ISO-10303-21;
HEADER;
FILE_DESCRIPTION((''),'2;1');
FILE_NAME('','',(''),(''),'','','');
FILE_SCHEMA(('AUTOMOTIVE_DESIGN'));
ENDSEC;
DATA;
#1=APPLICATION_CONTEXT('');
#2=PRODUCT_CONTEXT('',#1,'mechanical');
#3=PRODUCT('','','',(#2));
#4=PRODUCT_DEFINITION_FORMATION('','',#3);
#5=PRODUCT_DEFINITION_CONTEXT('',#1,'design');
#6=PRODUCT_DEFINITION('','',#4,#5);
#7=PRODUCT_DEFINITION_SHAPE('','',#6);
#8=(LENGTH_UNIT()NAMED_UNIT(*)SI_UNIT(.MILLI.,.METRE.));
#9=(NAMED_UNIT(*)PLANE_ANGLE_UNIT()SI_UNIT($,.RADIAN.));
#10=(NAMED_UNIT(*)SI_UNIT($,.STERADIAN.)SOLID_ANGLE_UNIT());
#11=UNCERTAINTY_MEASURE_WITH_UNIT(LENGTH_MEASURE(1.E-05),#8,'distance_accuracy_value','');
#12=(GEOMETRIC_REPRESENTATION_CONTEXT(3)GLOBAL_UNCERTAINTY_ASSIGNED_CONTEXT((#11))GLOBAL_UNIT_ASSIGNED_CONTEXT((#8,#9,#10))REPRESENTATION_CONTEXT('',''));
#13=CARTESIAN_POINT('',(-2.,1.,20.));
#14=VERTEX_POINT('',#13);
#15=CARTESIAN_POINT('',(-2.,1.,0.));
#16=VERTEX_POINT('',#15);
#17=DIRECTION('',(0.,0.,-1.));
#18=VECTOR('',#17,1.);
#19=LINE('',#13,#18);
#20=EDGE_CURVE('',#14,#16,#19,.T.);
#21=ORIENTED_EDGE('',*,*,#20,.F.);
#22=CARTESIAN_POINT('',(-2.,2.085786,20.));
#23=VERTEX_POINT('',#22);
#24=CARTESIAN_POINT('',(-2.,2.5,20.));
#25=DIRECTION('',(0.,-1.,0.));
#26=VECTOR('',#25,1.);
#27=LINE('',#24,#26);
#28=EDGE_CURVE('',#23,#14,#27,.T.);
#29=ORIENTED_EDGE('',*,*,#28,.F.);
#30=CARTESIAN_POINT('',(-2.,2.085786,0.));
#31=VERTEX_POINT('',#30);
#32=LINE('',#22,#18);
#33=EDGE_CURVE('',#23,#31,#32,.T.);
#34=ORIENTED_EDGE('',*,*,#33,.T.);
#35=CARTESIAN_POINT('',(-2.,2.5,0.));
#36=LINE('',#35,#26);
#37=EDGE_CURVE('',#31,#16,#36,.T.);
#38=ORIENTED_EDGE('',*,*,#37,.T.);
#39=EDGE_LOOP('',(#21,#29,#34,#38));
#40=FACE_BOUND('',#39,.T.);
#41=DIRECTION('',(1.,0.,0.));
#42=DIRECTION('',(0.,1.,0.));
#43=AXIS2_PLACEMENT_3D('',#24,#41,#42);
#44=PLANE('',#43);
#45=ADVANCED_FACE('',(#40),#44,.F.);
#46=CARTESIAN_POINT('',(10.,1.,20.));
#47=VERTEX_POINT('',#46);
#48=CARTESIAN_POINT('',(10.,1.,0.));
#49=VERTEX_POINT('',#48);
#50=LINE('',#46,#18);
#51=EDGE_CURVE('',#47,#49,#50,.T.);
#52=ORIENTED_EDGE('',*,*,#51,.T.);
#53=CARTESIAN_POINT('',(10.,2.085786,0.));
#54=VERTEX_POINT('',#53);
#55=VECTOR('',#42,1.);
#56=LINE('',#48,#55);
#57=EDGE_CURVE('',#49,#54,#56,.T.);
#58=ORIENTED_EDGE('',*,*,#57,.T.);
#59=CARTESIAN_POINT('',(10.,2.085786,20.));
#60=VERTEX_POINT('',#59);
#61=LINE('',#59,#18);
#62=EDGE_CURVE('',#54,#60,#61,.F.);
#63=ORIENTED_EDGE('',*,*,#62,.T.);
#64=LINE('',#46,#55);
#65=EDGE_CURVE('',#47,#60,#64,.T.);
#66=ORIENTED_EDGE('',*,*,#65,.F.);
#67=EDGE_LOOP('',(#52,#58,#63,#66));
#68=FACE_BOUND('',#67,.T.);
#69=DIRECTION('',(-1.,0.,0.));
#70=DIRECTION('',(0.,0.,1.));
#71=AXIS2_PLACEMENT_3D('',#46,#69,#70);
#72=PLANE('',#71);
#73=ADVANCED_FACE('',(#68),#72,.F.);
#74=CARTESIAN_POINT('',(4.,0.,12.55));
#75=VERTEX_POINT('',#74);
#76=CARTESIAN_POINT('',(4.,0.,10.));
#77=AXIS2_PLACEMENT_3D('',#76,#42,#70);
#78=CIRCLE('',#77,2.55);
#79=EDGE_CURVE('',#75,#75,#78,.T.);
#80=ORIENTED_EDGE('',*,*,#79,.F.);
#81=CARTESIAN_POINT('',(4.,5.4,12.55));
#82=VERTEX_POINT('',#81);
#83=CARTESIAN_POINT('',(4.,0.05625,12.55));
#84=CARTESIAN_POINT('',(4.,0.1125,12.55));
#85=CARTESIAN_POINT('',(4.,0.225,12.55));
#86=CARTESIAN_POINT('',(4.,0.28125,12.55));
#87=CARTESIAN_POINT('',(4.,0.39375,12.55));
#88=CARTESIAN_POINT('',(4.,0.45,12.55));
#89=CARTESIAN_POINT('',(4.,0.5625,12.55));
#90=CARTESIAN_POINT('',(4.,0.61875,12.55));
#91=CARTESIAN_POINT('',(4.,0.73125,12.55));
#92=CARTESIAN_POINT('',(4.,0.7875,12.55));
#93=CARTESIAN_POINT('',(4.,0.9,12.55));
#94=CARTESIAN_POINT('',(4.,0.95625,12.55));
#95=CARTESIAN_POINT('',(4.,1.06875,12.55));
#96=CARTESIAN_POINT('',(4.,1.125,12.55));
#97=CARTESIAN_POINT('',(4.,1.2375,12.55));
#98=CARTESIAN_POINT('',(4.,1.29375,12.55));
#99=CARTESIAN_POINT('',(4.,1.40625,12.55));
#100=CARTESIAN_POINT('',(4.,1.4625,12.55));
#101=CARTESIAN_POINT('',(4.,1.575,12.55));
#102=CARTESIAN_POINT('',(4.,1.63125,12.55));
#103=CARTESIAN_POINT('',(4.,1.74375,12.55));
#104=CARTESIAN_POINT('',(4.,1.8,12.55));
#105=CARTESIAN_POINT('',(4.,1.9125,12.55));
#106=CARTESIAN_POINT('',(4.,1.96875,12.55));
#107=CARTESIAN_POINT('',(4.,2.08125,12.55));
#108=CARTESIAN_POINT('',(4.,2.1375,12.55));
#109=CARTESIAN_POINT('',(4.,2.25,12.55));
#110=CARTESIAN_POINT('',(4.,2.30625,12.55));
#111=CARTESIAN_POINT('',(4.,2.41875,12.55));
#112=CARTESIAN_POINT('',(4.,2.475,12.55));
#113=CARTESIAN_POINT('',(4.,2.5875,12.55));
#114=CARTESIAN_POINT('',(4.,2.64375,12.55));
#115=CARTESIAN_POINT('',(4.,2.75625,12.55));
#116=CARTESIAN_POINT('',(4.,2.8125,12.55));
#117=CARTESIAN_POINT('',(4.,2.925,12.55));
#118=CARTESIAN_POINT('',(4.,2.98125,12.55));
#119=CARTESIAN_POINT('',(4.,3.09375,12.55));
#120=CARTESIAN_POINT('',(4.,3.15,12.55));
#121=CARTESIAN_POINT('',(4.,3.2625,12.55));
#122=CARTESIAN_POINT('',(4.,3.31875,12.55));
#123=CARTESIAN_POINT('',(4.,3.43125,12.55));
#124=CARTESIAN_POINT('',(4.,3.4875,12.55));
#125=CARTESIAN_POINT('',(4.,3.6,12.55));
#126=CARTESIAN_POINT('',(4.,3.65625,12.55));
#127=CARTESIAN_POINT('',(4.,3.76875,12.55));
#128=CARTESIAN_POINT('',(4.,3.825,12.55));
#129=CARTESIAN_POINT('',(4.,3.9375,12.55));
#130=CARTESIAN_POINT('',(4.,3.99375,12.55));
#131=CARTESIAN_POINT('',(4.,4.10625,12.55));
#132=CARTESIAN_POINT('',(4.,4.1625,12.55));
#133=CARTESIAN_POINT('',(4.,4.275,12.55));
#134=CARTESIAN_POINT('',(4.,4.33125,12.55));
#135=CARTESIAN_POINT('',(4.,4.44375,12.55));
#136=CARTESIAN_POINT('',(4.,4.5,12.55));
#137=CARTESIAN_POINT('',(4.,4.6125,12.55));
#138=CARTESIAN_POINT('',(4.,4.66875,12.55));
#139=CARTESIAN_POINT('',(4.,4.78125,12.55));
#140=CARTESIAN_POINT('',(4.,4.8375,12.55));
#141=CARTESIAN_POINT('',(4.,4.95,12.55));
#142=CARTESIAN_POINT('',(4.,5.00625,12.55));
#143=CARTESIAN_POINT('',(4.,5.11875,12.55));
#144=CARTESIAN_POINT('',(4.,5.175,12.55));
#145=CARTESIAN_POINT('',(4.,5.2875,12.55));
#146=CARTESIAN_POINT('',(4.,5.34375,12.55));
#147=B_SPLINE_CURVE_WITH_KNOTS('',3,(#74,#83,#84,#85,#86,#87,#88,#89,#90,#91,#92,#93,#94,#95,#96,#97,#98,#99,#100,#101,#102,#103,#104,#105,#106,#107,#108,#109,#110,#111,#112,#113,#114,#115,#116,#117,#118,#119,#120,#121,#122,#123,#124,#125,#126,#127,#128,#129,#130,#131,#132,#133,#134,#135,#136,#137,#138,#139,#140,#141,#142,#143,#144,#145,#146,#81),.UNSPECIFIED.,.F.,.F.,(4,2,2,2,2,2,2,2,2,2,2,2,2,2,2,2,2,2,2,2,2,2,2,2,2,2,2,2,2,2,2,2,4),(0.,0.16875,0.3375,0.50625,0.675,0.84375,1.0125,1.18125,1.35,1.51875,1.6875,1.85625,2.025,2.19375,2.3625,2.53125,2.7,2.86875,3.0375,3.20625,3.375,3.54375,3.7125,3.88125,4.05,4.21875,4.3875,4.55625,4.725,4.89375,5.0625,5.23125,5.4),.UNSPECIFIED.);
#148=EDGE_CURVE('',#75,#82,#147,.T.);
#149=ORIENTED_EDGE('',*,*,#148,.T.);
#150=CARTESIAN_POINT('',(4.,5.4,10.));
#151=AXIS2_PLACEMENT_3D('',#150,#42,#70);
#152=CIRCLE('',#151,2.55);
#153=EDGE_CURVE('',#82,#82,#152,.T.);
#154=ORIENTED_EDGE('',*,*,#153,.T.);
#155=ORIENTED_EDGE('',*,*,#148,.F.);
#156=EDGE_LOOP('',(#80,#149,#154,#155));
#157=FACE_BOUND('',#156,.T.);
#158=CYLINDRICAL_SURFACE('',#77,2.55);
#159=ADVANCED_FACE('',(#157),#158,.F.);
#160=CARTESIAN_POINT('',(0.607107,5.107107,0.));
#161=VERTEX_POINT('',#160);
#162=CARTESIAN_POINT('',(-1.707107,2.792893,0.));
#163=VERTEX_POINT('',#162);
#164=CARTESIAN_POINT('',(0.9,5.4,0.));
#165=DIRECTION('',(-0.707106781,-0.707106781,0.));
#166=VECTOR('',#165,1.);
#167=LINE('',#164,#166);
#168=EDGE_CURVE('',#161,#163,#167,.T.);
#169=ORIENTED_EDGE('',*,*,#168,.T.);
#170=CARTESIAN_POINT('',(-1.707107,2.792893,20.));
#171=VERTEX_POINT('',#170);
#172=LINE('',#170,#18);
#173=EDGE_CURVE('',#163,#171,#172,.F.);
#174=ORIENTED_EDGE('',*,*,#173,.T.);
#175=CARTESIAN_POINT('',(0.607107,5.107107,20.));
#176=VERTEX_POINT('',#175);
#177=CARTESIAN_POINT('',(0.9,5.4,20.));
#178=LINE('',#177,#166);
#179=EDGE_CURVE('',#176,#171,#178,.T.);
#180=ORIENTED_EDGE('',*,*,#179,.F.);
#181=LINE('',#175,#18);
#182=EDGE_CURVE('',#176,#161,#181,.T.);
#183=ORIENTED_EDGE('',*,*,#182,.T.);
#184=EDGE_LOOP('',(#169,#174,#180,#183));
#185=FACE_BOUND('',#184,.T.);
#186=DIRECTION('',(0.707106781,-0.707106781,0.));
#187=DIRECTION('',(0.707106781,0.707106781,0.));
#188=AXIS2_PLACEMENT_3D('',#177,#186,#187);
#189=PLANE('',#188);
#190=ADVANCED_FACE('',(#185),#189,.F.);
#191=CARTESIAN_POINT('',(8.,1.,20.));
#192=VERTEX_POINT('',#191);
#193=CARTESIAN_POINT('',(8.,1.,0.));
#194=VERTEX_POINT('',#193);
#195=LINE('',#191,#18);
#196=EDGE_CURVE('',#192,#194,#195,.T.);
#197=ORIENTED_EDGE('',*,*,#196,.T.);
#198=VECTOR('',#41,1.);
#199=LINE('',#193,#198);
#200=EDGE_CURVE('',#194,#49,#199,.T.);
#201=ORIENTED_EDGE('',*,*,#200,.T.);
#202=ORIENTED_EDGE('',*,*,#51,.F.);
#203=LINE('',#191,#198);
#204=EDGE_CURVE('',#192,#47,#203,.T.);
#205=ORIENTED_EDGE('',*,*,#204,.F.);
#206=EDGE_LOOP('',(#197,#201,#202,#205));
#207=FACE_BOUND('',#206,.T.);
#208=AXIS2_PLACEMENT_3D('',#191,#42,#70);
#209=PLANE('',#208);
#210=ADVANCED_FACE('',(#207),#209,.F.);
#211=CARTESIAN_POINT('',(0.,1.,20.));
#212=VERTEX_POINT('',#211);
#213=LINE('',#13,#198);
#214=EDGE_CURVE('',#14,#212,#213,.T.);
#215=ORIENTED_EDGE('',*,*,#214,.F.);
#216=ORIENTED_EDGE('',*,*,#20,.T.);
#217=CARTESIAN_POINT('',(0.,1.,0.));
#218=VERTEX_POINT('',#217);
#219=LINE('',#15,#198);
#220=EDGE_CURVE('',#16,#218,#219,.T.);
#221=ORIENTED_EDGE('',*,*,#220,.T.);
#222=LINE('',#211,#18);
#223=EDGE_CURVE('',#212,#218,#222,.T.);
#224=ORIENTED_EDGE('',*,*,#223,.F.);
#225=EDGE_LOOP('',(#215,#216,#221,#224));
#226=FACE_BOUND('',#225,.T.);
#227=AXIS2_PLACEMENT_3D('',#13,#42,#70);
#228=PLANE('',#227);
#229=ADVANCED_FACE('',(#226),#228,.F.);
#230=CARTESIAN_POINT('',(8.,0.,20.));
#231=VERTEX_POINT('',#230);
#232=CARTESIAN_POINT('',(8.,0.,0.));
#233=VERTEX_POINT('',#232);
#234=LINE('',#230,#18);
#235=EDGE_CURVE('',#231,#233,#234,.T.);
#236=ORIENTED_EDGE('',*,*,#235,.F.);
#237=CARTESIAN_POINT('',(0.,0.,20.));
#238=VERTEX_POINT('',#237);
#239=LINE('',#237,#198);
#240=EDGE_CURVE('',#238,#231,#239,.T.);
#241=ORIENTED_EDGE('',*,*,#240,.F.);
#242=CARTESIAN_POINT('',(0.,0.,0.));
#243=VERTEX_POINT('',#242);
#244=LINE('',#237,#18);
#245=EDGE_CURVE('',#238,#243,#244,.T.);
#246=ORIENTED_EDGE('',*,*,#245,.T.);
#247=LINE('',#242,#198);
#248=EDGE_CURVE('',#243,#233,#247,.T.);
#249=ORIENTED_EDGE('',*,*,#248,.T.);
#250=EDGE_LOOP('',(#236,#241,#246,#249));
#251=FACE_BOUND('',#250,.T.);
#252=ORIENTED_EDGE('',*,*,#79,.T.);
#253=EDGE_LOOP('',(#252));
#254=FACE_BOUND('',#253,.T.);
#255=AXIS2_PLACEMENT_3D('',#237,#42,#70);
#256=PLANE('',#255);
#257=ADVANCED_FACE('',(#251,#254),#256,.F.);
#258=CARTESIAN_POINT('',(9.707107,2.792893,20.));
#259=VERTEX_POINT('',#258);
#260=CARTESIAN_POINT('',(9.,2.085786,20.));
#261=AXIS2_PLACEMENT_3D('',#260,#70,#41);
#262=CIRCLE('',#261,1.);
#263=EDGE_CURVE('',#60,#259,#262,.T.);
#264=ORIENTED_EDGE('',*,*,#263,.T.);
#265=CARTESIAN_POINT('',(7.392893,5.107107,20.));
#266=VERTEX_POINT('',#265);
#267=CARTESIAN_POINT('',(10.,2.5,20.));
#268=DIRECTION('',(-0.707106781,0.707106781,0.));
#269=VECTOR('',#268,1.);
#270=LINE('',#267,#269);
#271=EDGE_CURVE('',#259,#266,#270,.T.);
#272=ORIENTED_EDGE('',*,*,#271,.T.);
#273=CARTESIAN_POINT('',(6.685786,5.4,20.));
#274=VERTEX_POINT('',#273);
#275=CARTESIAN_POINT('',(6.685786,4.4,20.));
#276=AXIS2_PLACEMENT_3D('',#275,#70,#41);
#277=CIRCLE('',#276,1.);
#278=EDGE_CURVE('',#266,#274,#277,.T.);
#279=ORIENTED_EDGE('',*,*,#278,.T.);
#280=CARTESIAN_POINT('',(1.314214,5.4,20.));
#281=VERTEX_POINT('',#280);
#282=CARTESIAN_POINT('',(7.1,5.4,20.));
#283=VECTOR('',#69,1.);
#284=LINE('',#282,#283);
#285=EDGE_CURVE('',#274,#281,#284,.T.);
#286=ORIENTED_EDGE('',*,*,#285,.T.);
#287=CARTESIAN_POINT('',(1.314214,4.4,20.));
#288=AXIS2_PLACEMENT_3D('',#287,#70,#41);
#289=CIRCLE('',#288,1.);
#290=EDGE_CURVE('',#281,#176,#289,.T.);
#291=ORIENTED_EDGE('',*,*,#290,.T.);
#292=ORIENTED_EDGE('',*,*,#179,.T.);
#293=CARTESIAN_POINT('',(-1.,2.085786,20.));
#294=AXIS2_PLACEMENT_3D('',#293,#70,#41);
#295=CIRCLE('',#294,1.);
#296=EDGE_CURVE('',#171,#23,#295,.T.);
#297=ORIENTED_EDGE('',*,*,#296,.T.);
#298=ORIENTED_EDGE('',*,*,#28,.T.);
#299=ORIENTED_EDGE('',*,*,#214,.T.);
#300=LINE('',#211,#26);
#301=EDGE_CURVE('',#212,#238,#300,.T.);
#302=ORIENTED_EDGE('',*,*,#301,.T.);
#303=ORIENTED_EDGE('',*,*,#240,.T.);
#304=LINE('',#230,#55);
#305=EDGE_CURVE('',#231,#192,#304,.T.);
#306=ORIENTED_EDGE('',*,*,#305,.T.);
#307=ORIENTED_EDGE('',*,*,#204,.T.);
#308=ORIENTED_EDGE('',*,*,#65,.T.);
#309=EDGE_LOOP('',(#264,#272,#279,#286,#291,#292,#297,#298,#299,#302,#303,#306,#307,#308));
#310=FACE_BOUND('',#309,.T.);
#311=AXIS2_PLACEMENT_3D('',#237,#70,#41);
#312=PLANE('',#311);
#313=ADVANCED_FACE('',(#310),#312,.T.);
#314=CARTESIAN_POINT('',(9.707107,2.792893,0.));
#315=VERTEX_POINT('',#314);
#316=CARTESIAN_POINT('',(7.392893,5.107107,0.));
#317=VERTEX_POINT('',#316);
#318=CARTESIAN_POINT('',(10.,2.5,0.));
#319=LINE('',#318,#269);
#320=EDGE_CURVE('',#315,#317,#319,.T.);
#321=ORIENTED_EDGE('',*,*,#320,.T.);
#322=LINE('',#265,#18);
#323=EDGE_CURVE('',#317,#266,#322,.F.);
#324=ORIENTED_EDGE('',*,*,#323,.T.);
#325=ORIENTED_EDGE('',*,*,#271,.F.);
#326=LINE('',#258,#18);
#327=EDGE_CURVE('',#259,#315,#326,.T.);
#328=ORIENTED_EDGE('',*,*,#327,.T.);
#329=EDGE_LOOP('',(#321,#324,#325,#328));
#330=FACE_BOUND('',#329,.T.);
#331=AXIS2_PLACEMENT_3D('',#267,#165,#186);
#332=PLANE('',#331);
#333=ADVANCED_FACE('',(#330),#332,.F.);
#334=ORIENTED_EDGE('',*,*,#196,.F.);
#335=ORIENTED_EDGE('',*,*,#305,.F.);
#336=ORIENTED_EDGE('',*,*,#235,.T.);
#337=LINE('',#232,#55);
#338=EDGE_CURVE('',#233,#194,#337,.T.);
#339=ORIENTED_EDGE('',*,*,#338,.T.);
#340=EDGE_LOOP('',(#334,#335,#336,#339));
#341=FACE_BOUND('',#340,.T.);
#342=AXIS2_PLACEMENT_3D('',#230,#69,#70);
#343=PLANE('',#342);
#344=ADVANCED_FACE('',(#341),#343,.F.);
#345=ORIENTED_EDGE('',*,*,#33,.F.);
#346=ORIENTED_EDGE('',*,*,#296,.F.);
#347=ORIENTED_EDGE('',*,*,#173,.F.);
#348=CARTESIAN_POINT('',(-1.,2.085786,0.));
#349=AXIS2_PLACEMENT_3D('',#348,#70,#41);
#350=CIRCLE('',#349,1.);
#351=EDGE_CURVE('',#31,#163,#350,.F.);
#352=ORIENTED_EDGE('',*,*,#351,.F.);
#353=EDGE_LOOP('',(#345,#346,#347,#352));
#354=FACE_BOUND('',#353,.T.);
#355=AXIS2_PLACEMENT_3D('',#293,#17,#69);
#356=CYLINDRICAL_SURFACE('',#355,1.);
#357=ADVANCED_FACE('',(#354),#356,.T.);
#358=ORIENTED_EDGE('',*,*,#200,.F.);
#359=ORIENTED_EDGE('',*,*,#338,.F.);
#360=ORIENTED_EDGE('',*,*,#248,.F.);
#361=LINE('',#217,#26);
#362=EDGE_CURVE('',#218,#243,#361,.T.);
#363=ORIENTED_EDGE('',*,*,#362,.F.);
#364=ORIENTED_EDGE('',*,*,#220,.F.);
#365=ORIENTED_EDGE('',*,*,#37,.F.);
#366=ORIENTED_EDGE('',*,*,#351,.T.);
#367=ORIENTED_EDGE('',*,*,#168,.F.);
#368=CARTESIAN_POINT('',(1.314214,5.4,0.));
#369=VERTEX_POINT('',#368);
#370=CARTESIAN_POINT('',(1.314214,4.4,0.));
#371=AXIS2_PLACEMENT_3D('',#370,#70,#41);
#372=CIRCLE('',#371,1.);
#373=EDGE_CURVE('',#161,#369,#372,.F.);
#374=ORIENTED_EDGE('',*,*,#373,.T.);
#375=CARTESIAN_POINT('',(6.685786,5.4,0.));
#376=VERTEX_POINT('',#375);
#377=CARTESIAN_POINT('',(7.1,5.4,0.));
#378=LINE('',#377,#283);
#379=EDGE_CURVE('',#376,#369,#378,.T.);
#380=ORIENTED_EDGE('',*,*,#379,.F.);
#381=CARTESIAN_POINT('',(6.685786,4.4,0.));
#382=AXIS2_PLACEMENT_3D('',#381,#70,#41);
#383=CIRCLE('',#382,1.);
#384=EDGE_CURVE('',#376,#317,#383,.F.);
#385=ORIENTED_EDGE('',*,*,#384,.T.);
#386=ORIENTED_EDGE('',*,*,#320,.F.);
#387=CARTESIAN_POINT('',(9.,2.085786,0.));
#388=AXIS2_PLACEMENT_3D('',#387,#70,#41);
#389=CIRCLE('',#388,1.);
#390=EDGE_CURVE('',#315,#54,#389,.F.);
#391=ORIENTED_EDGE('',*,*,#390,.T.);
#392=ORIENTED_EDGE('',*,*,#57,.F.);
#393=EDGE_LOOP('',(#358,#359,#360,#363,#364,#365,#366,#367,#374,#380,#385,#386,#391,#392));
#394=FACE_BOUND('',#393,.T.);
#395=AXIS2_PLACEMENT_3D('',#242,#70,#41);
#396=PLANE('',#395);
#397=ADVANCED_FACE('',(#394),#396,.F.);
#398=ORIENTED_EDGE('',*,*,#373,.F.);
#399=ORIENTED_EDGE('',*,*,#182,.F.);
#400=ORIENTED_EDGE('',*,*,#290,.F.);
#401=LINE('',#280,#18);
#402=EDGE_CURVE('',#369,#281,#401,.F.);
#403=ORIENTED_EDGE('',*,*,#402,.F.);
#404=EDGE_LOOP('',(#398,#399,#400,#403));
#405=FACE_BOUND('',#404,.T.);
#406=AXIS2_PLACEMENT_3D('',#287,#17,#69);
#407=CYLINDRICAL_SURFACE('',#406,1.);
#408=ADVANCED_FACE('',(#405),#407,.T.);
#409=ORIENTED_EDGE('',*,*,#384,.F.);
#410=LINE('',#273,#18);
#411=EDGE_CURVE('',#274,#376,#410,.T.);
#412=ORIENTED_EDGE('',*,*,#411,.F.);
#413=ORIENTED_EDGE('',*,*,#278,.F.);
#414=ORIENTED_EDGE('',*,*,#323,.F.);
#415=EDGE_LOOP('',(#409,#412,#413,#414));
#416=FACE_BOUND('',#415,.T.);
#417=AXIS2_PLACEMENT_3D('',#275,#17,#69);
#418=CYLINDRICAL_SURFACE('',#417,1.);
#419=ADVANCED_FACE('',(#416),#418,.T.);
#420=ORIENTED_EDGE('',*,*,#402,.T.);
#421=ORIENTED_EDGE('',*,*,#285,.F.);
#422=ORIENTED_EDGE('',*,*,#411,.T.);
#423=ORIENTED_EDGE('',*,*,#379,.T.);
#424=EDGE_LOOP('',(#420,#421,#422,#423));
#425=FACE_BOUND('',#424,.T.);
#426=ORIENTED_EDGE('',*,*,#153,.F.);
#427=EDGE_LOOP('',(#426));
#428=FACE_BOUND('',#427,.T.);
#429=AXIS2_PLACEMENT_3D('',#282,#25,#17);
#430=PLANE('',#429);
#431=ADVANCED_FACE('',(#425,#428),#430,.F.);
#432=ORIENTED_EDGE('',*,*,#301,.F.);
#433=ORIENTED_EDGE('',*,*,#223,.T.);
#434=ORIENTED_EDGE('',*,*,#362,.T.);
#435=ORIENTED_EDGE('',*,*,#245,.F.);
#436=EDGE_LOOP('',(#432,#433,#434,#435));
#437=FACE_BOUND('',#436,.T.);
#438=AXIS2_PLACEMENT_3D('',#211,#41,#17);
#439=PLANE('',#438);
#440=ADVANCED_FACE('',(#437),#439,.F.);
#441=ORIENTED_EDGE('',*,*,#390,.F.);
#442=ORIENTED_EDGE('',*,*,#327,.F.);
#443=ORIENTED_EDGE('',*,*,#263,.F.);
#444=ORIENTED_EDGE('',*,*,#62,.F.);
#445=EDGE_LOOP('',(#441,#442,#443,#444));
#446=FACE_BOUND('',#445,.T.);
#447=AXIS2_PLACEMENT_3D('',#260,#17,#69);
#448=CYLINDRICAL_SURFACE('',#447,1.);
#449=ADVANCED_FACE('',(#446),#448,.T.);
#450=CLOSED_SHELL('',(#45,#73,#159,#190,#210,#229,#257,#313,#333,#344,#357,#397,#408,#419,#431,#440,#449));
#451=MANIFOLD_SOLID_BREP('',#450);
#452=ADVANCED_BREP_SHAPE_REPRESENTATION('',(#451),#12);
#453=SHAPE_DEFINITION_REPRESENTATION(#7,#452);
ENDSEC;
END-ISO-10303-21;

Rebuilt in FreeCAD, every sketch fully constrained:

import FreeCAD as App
import Part
import Sketcher
Q = App.Units.Quantity


def edges_at(feature, points):
    """Names of the edges that pass closest to the given points."""
    edges = feature.Shape.Edges
    near = lambda p: min(range(len(edges)), key=lambda i: edges[i].distToShape(Part.Vertex(*p))[0])
    return sorted({f"Edge{near(p) + 1}" for p in points})

doc = App.newDocument("Part")
body = doc.addObject("PartDesign::Body", "Body")

# Sketch on XY plane
sketch1 = body.newObject("Sketcher::SketchObject", "Sketch")
sketch1.AttachmentSupport = (doc.getObject("XY_Plane"), [""])
sketch1.MapMode = "FlatFace"
sketch1.addGeometry([
    Part.LineSegment(App.Vector(0, 0, 0), App.Vector(8, 0, 0)),  # 0
    Part.LineSegment(App.Vector(8, 0, 0), App.Vector(8, 1, 0)),  # 1
    Part.LineSegment(App.Vector(8, 1, 0), App.Vector(10, 1, 0)),  # 2
    Part.LineSegment(App.Vector(10, 1, 0), App.Vector(10, 2.5, 0)),  # 3
    Part.LineSegment(App.Vector(10, 2.5, 0), App.Vector(7.1, 5.4, 0)),  # 4
    Part.LineSegment(App.Vector(7.1, 5.4, 0), App.Vector(0.9, 5.4, 0)),  # 5
    Part.LineSegment(App.Vector(0.9, 5.4, 0), App.Vector(-2, 2.5, 0)),  # 6
    Part.LineSegment(App.Vector(-2, 2.5, 0), App.Vector(-2, 1, 0)),  # 7
    Part.LineSegment(App.Vector(-2, 1, 0), App.Vector(0, 1, 0)),  # 8
    Part.LineSegment(App.Vector(0, 1, 0), App.Vector(0, 0, 0)),  # 9
], False)
sketch1.addConstraint([
    Sketcher.Constraint("Coincident", 0, 2, 1, 1),
    Sketcher.Constraint("Coincident", 1, 2, 2, 1),
    Sketcher.Constraint("Coincident", 2, 2, 3, 1),
    Sketcher.Constraint("Coincident", 3, 2, 4, 1),
    Sketcher.Constraint("Coincident", 4, 2, 5, 1),
    Sketcher.Constraint("Coincident", 5, 2, 6, 1),
    Sketcher.Constraint("Coincident", 6, 2, 7, 1),
    Sketcher.Constraint("Coincident", 7, 2, 8, 1),
    Sketcher.Constraint("Coincident", 8, 2, 9, 1),
    Sketcher.Constraint("Coincident", 9, 2, 0, 1),
    Sketcher.Constraint("Horizontal", 0),
    Sketcher.Constraint("Vertical", 1),
    Sketcher.Constraint("Horizontal", 2),
    Sketcher.Constraint("Vertical", 3),
    Sketcher.Constraint("Horizontal", 5),
    Sketcher.Constraint("Vertical", 7),
    Sketcher.Constraint("Horizontal", 8),
    Sketcher.Constraint("Vertical", 9),
    Sketcher.Constraint("Coincident", 9, 2, -1, 1),
    Sketcher.Constraint("Perpendicular", 4, 6),
    Sketcher.Constraint("Horizontal", 3, 2, 6, 2),
    Sketcher.Constraint("Horizontal", 2, 2, 7, 2),
    Sketcher.Constraint("Equal", 2, 8),
    Sketcher.Constraint("Equal", 4, 6),
    Sketcher.Constraint("DistanceX", 0, 1, 0, 2, Q("8 mm")),
    Sketcher.Constraint("DistanceX", 2, 1, 2, 2, Q("2 mm")),
    Sketcher.Constraint("DistanceY", 1, 1, 1, 2, Q("1 mm")),
    Sketcher.Constraint("DistanceX", 5, 2, 5, 1, Q("6.2 mm")),
    Sketcher.Constraint("DistanceY", 3, 1, 3, 2, Q("1.5 mm")),
])
pad1 = body.newObject("PartDesign::Pad", "Pad")
pad1.Profile = sketch1
pad1.Length = 20
doc.recompute()

fillet = body.newObject("PartDesign::Fillet", "Fillet")
fillet.Base = (pad1, edges_at(pad1, [
    (-2, 2.5, 10),
    (0.9, 5.4, 10),
    (7.1, 5.4, 10),
    (10, 2.5, 10),
]))
fillet.Radius = 1

# Sketch on XZ plane
sketch2 = body.newObject("Sketcher::SketchObject", "Sketch001")
sketch2.AttachmentSupport = (doc.getObject("XZ_Plane"), [""])
sketch2.MapMode = "FlatFace"
sketch2.AttachmentOffset = App.Placement(App.Vector(0, 0, -5.4), App.Rotation())
sketch2.addGeometry(Part.Circle(App.Vector(4, 10, 0), App.Vector(0, 0, 1), 2.5), False)
sketch2.addConstraint([
    Sketcher.Constraint("Diameter", 0, Q("5.1 mm")),
    Sketcher.Constraint("DistanceX", -1, 1, 0, 3, Q("4 mm")),
    Sketcher.Constraint("DistanceY", -1, 1, 0, 3, Q("10 mm")),
])
pocket1 = body.newObject("PartDesign::Pocket", "Pocket")
pocket1.Profile = sketch2
pocket1.Type = "ThroughAll"
pocket1.Reversed = True

doc.recompute()
